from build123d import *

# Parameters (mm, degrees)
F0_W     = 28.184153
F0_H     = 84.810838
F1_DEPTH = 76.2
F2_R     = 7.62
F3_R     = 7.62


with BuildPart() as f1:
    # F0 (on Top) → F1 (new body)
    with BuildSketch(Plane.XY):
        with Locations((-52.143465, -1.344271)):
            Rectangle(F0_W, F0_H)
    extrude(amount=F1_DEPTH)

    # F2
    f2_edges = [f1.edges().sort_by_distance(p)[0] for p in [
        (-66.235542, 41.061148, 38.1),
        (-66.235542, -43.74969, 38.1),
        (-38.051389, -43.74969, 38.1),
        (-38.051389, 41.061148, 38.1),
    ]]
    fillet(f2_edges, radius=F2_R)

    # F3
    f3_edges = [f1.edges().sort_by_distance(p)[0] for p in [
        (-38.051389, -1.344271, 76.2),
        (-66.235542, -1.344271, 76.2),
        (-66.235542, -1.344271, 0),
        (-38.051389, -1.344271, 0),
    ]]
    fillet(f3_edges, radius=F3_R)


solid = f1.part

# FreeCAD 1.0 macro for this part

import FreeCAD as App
import Part
import Sketcher

V = App.Vector
Q = App.Units.Quantity


def edges_at(feature, points):
    """Names of the edges that pass closest to the given points."""
    edges = feature.Shape.Edges
    near = lambda p: min(range(len(edges)), key=lambda i: edges[i].distToShape(Part.Vertex(*p))[0])
    return sorted({f"Edge{near(p) + 1}" for p in points})


def add_polygon(sketch, points):
    """Adds a closed chain of lines whose ends are joined by coincident constraints."""
    first, n = sketch.GeometryCount, len(points)
    for a, b in zip(points, points[1:] + points[:1]):
        sketch.addGeometry(Part.LineSegment(App.Vector(*a, 0), App.Vector(*b, 0)), False)
    for i in range(n):
        sketch.addConstraint(Sketcher.Constraint("Coincident", first + i, 2, first + (i + 1) % n, 1))

doc = App.newDocument("Part")
body = doc.addObject("PartDesign::Body", "Body")

# Sketch on XY plane
sketch1 = body.newObject("Sketcher::SketchObject", "Sketch")
sketch1.AttachmentSupport = (doc.getObject("XY_Plane"), [""])
sketch1.MapMode = "FlatFace"
add_polygon(sketch1, [(-66, 41), (-66, -44), (-38, -44), (-38, 41)])  # lines 0-3
sketch1.addConstraint([
    Sketcher.Constraint("Vertical", 0),
    Sketcher.Constraint("Horizontal", 1),
    Sketcher.Constraint("Vertical", 2),
    Sketcher.Constraint("Horizontal", 3),
    Sketcher.Constraint("DistanceY", 0, 2, 0, 1, 84.810838),
    Sketcher.Constraint("DistanceX", 1, 1, 1, 2, 28.184153),
    Sketcher.Constraint("DistanceX", 0, 2, -1, 1, 66.235541),
    Sketcher.Constraint("DistanceY", 0, 2, -1, 1, 43.74969),
])
pad1 = body.newObject("PartDesign::Pad", "Pad")
pad1.Profile = sketch1
pad1.Length = Q("3 in")
doc.recompute()

fillet = body.newObject("PartDesign::Fillet", "Fillet")
fillet.Base = (pad1, edges_at(pad1, [
    (-66.236, 41.061, 38.1),
    (-66.236, -43.75, 38.1),
    (-38.051, -43.75, 38.1),
    (-38.051, 41.061, 38.1),
]))
fillet.Radius = Q("0.3 in")
doc.recompute()

fillet2 = body.newObject("PartDesign::Fillet", "Fillet001")
fillet2.Base = (fillet, edges_at(fillet, [
    (-38.051, -1.344, 76.2),
    (-66.236, -1.344, 76.2),
    (-66.236, -1.344, 0),
    (-38.051, -1.344, 0),
]))
fillet2.Radius = Q("0.3 in")

doc.recompute()
